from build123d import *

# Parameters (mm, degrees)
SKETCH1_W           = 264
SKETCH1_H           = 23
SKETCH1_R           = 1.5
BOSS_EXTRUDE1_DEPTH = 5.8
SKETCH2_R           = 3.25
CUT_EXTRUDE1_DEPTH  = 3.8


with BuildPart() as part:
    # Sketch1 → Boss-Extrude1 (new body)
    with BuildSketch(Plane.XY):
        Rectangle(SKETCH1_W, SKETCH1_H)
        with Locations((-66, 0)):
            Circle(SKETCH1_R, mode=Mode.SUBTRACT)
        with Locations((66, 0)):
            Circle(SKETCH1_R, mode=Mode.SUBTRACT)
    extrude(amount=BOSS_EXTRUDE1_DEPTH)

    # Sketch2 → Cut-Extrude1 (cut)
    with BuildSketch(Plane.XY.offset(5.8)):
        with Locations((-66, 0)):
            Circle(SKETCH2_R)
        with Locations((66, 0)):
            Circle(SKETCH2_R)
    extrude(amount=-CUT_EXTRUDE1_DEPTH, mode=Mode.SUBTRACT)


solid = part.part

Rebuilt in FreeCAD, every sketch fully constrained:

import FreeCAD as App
import Part
import Sketcher

doc = App.newDocument("Part")
body = doc.addObject("PartDesign::Body", "Body")

# Sketch on XY plane
sketch1 = body.newObject("Sketcher::SketchObject", "Sketch")
sketch1.AttachmentSupport = (doc.getObject("XY_Plane"), [""])
sketch1.MapMode = "FlatFace"
sketch1.addGeometry(Part.LineSegment(App.Vector(-132, 11.5, 0), App.Vector(-132, -11.5, 0)), False)
sketch1.addGeometry(Part.LineSegment(App.Vector(-132, -11.5, 0), App.Vector(132, -11.5, 0)), False)
sketch1.addGeometry(Part.LineSegment(App.Vector(132, -11.5, 0), App.Vector(132, 11.5, 0)), False)
sketch1.addGeometry(Part.LineSegment(App.Vector(132, 11.5, 0), App.Vector(-132, 11.5, 0)), False)
sketch1.addGeometry(Part.Circle(App.Vector(-66, 0, 0), App.Vector(0, 0, 1), 1.5), False)
sketch1.addGeometry(Part.Circle(App.Vector(66, 0, 0), App.Vector(0, 0, 1), 1.5), False)
sketch1.addConstraint(Sketcher.Constraint("Coincident", 0, 2, 1, 1))
sketch1.addConstraint(Sketcher.Constraint("Coincident", 1, 2, 2, 1))
sketch1.addConstraint(Sketcher.Constraint("Coincident", 2, 2, 3, 1))
sketch1.addConstraint(Sketcher.Constraint("Coincident", 3, 2, 0, 1))
sketch1.addConstraint(Sketcher.Constraint("Vertical", 0))
sketch1.addConstraint(Sketcher.Constraint("Horizontal", 1))
sketch1.addConstraint(Sketcher.Constraint("Vertical", 2))
sketch1.addConstraint(Sketcher.Constraint("Horizontal", 3))
sketch1.addConstraint(Sketcher.Constraint("Equal", 4, 5))
sketch1.addConstraint(Sketcher.Constraint("Symmetric", 4, 3, 5, 3, -1, 1))
sketch1.addConstraint(Sketcher.Constraint("Symmetric", 0, 2, 2, 2, -1, 1))
sketch1.addConstraint(Sketcher.Constraint("PointOnObject", 4, 3, -1))
sketch1.addConstraint(Sketcher.Constraint("Diameter", 4, 3.0))
sketch1.addConstraint(Sketcher.Constraint("DistanceX", 1, 1, 1, 2, 264.0))
sketch1.addConstraint(Sketcher.Constraint("DistanceY", 0, 2, 0, 1, 23.0))
sketch1.addConstraint(Sketcher.Constraint("DistanceX", 4, 3, -1, 1, 66.0))
pad1 = body.newObject("PartDesign::Pad", "Pad")
pad1.Profile = sketch1
pad1.Length = 5.8

# Sketch on XY plane
sketch2 = body.newObject("Sketcher::SketchObject", "Sketch001")
sketch2.AttachmentSupport = (doc.getObject("XY_Plane"), [""])
sketch2.MapMode = "FlatFace"
sketch2.AttachmentOffset = App.Placement(App.Vector(0, 0, 5.8), App.Rotation())
sketch2.addGeometry(Part.Circle(App.Vector(-66, 0, 0), App.Vector(0, 0, 1), 3.25), False)
sketch2.addGeometry(Part.Circle(App.Vector(66, 0, 0), App.Vector(0, 0, 1), 3.25), False)
sketch2.addConstraint(Sketcher.Constraint("Equal", 0, 1))
sketch2.addConstraint(Sketcher.Constraint("Symmetric", 0, 3, 1, 3, -1, 1))
sketch2.addConstraint(Sketcher.Constraint("PointOnObject", 0, 3, -1))
sketch2.addConstraint(Sketcher.Constraint("Diameter", 0, 6.5))
sketch2.addConstraint(Sketcher.Constraint("DistanceX", 0, 3, -1, 1, 66.0))
pocket1 = body.newObject("PartDesign::Pocket", "Pocket")
pocket1.Profile = sketch2
pocket1.Length = 3.8

doc.recompute()
